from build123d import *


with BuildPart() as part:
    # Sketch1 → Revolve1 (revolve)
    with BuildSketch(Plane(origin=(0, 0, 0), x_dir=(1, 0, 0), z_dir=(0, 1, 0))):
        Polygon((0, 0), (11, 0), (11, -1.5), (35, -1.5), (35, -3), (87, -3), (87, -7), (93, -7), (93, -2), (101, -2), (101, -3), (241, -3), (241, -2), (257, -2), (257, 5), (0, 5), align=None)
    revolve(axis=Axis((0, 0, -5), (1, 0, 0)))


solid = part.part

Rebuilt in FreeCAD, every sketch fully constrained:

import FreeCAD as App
import Part
import Sketcher
Q = App.Units.Quantity


def add_polygon(sketch, points):
    """Adds a closed chain of lines whose ends are joined by coincident constraints."""
    first, n = sketch.GeometryCount, len(points)
    for a, b in zip(points, points[1:] + points[:1]):
        sketch.addGeometry(Part.LineSegment(App.Vector(*a, 0), App.Vector(*b, 0)), False)
    for i in range(n):
        sketch.addConstraint(Sketcher.Constraint("Coincident", first + i, 2, first + (i + 1) % n, 1))

doc = App.newDocument("Part")
body = doc.addObject("PartDesign::Body", "Body")

# Sketch on XZ plane
sketch1 = body.newObject("Sketcher::SketchObject", "Sketch")
sketch1.AttachmentSupport = (doc.getObject("XZ_Plane"), [""])
sketch1.MapMode = "FlatFace"
add_polygon(sketch1, [(0, 0), (11, 0), (11, 1.5), (35, 1.5), (35, 3), (87, 3), (87, 7), (93, 7), (93, 2), (101, 2), (101, 3), (241, 3), (241, 2), (257, 2), (257, -5), (0, -5)])  # lines 0-15
sketch1.addGeometry(Part.LineSegment(App.Vector(0, -5, 0), App.Vector(257, -5, 0)), True)  # axis
sketch1.addConstraint([
    Sketcher.Constraint("Horizontal", 0),
    Sketcher.Constraint("Vertical", 1),
    Sketcher.Constraint("Horizontal", 2),
    Sketcher.Constraint("Vertical", 3),
    Sketcher.Constraint("Horizontal", 4),
    Sketcher.Constraint("Vertical", 5),
    Sketcher.Constraint("Horizontal", 6),
    Sketcher.Constraint("Vertical", 7),
    Sketcher.Constraint("Horizontal", 8),
    Sketcher.Constraint("Vertical", 9),
    Sketcher.Constraint("Horizontal", 10),
    Sketcher.Constraint("Vertical", 11),
    Sketcher.Constraint("Horizontal", 12),
    Sketcher.Constraint("Vertical", 13),
    Sketcher.Constraint("Horizontal", 14),
    Sketcher.Constraint("Vertical", 15),
    Sketcher.Constraint("Horizontal", 16),
    Sketcher.Constraint("Coincident", 15, 2, -1, 1),
    Sketcher.Constraint("Coincident", 16, 1, 14, 2),
    Sketcher.Constraint("Horizontal", 4, 2, 9, 2),
    Sketcher.Constraint("Horizontal", 8, 2, 11, 2),
    Sketcher.Constraint("Vertical", 12, 2, 16, 2),
    Sketcher.Constraint("Equal", 1, 3),
    Sketcher.Constraint("Equal", 7, 15),
    Sketcher.Constraint("DistanceX", 0, 1, 0, 2, Q("11 mm")),
    Sketcher.Constraint("DistanceX", 2, 1, 2, 2, Q("24 mm")),
    Sketcher.Constraint("DistanceX", 4, 1, 4, 2, Q("52 mm")),
    Sketcher.Constraint("DistanceX", 6, 1, 6, 2, Q("6 mm")),
    Sketcher.Constraint("DistanceX", 8, 1, 8, 2, Q("8 mm")),
    Sketcher.Constraint("DistanceX", 10, 1, 10, 2, Q("140 mm")),
    Sketcher.Constraint("DistanceX", 12, 1, 12, 2, Q("16 mm")),
    Sketcher.Constraint("DistanceY", 5, 1, 5, 2, Q("4 mm")),
    Sketcher.Constraint("DistanceY", 7, 2, 7, 1, Q("5 mm")),
    Sketcher.Constraint("DistanceY", 13, 2, 13, 1, Q("7 mm")),
])
revolution = body.newObject("PartDesign::Revolution", "Revolution")
revolution.Profile = sketch1
revolution.ReferenceAxis = (sketch1, ["Axis0"])
revolution.Angle = 360

doc.recompute()
